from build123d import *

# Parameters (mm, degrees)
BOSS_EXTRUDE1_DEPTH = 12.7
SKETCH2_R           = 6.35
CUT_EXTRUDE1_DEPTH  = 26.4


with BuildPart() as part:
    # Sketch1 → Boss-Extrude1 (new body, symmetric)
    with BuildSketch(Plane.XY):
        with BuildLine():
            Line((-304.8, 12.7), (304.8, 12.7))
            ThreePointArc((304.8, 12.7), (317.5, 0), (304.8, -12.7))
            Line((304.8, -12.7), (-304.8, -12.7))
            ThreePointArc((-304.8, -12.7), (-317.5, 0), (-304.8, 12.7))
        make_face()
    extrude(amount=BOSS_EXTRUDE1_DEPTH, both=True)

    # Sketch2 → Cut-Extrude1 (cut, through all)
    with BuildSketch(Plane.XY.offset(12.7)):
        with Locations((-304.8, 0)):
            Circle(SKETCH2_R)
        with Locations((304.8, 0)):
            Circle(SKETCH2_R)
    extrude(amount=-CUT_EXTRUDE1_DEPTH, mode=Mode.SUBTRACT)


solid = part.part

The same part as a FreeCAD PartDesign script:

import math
import FreeCAD as App
import Part
import Sketcher

V = App.Vector
Q = App.Units.Quantity

doc = App.newDocument("Part")
body = doc.addObject("PartDesign::Body", "Body")

# Sketch on XY plane
sketch1 = body.newObject("Sketcher::SketchObject", "Sketch")
sketch1.AttachmentSupport = (doc.getObject("XY_Plane"), [""])
sketch1.MapMode = "FlatFace"
sketch1.addGeometry([
    Part.LineSegment(V(304.8, 12.7, 0), V(-304.8, 12.7, 0)),
    Part.ArcOfCircle(Part.Circle(V(-304.8, 0, 0), V(0, 0, 1), 12.7), math.radians(90), math.radians(270)),
    Part.LineSegment(V(-304.8, -12.7, 0), V(304.8, -12.7, 0)),
    Part.ArcOfCircle(Part.Circle(V(304.8, 0, 0), V(0, 0, 1), 12.7), math.radians(-90), math.radians(90)),
], False)
sketch1.addConstraint([
    Sketcher.Constraint("Tangent", 0, 2, 1, 1),
    Sketcher.Constraint("Tangent", 1, 2, 2, 1),
    Sketcher.Constraint("Tangent", 2, 2, 3, 1),
    Sketcher.Constraint("Tangent", 3, 2, 0, 1),
    Sketcher.Constraint("Horizontal", 0),
    Sketcher.Constraint("Horizontal", 2),
    Sketcher.Constraint("Symmetric", 1, 3, 3, 3, -1, 1),
    Sketcher.Constraint("Radius", 1, Q("0.5 in")),
    Sketcher.Constraint("DistanceX", 0, 2, 0, 1, Q("24 in")),
])
pad1 = body.newObject("PartDesign::Pad", "Pad")
pad1.Profile = sketch1
pad1.Length = Q("1 in")
pad1.Midplane = True

# Sketch on XY plane
sketch2 = body.newObject("Sketcher::SketchObject", "Sketch001")
sketch2.AttachmentSupport = (doc.getObject("XY_Plane"), [""])
sketch2.MapMode = "FlatFace"
sketch2.AttachmentOffset = App.Placement(V(0, 0, 0.5 * 25.4), App.Rotation())
sketch2.addGeometry([
    Part.Circle(V(-304.8, 0, 0), V(0, 0, 1), 6.35),
    Part.Circle(V(304.8, 0, 0), V(0, 0, 1), 6.35),
], False)
sketch2.addConstraint([
    Sketcher.Constraint("Equal", 0, 1),
    Sketcher.Constraint("Symmetric", 0, 3, 1, 3, -1, 1),
    Sketcher.Constraint("PointOnObject", 0, 3, -1),
    Sketcher.Constraint("Diameter", 0, Q("0.5 in")),
    Sketcher.Constraint("DistanceX", 0, 3, -1, 1, Q("12 in")),
])
pocket1 = body.newObject("PartDesign::Pocket", "Pocket")
pocket1.Profile = sketch2
pocket1.Type = "ThroughAll"

doc.recompute()
